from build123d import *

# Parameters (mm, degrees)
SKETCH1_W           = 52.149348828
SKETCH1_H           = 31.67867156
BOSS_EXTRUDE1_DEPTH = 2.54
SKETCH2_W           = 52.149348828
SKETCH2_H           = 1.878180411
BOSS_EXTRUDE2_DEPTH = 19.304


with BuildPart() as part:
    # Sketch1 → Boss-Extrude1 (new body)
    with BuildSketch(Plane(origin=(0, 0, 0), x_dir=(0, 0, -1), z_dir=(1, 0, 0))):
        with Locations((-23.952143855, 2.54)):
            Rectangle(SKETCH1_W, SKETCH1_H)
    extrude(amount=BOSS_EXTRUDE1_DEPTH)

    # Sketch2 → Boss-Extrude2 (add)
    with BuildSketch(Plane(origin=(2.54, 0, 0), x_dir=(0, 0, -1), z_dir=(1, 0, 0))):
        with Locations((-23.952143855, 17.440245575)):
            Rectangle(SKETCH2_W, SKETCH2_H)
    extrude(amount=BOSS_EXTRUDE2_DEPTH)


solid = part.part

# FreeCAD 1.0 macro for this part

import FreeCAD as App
import Part
import Sketcher

V = App.Vector
Q = App.Units.Quantity

doc = App.newDocument("Part")
body = doc.addObject("PartDesign::Body", "Body")

sketch1 = body.newObject("Sketcher::SketchObject", "Sketch")
sketch1.AttachmentSupport = (doc.getObject("YZ_Plane"), [""])
sketch1.MapMode = "FlatFace"
sketch1.addGeometry([
    Part.LineSegment(V(18, 50, 0), V(-13, 50, 0)),
    Part.LineSegment(V(-13, 50, 0), V(-13, -2, 0)),
    Part.LineSegment(V(-13, -2, 0), V(18, -2, 0)),
    Part.LineSegment(V(18, -2, 0), V(18, 50, 0)),
], False)
sketch1.addConstraint([
    Sketcher.Constraint("Coincident", 0, 2, 1, 1),
    Sketcher.Constraint("Coincident", 1, 2, 2, 1),
    Sketcher.Constraint("Coincident", 2, 2, 3, 1),
    Sketcher.Constraint("Coincident", 3, 2, 0, 1),
    Sketcher.Constraint("Horizontal", 0),
    Sketcher.Constraint("Vertical", 1),
    Sketcher.Constraint("Horizontal", 2),
    Sketcher.Constraint("Vertical", 3),
    Sketcher.Constraint("DistanceX", 0, 2, 0, 1, Q("31.678672 mm")),
    Sketcher.Constraint("DistanceY", 1, 2, 1, 1, Q("52.149349 mm")),
    Sketcher.Constraint("DistanceY", -1, 1, 0, 2, Q("50.026818 mm")),
    Sketcher.Constraint("DistanceX", 0, 2, -1, 1, Q("13.299336 mm")),
])
pad1 = body.newObject("PartDesign::Pad", "Pad")
pad1.Profile = sketch1
pad1.Length = Q("0.1 in")

sketch2 = body.newObject("Sketcher::SketchObject", "Sketch001")
sketch2.AttachmentSupport = (doc.getObject("YZ_Plane"), [""])
sketch2.MapMode = "FlatFace"
sketch2.AttachmentOffset = App.Placement(V(0, 0, 0.1 * 25.4), App.Rotation())
sketch2.addGeometry([
    Part.LineSegment(V(18.4, 50, 0), V(16.5, 50, 0)),
    Part.LineSegment(V(16.5, 50, 0), V(16.5, -2.1, 0)),
    Part.LineSegment(V(16.5, -2.1, 0), V(18.4, -2.1, 0)),
    Part.LineSegment(V(18.4, -2.1, 0), V(18.4, 50, 0)),
], False)
sketch2.addConstraint([
    Sketcher.Constraint("Coincident", 0, 2, 1, 1),
    Sketcher.Constraint("Coincident", 1, 2, 2, 1),
    Sketcher.Constraint("Coincident", 2, 2, 3, 1),
    Sketcher.Constraint("Coincident", 3, 2, 0, 1),
    Sketcher.Constraint("Horizontal", 0),
    Sketcher.Constraint("Vertical", 1),
    Sketcher.Constraint("Horizontal", 2),
    Sketcher.Constraint("Vertical", 3),
    Sketcher.Constraint("DistanceX", 0, 2, 0, 1, Q("1.87818 mm")),
    Sketcher.Constraint("DistanceY", 1, 2, 1, 1, Q("52.149349 mm")),
    Sketcher.Constraint("DistanceY", -1, 1, 0, 2, Q("50.026818 mm")),
    Sketcher.Constraint("DistanceX", -1, 1, 0, 2, Q("16.501155 mm")),
])
pad2 = body.newObject("PartDesign::Pad", "Pad001")
pad2.Profile = sketch2
pad2.Length = Q("0.76 in")

doc.recompute()
